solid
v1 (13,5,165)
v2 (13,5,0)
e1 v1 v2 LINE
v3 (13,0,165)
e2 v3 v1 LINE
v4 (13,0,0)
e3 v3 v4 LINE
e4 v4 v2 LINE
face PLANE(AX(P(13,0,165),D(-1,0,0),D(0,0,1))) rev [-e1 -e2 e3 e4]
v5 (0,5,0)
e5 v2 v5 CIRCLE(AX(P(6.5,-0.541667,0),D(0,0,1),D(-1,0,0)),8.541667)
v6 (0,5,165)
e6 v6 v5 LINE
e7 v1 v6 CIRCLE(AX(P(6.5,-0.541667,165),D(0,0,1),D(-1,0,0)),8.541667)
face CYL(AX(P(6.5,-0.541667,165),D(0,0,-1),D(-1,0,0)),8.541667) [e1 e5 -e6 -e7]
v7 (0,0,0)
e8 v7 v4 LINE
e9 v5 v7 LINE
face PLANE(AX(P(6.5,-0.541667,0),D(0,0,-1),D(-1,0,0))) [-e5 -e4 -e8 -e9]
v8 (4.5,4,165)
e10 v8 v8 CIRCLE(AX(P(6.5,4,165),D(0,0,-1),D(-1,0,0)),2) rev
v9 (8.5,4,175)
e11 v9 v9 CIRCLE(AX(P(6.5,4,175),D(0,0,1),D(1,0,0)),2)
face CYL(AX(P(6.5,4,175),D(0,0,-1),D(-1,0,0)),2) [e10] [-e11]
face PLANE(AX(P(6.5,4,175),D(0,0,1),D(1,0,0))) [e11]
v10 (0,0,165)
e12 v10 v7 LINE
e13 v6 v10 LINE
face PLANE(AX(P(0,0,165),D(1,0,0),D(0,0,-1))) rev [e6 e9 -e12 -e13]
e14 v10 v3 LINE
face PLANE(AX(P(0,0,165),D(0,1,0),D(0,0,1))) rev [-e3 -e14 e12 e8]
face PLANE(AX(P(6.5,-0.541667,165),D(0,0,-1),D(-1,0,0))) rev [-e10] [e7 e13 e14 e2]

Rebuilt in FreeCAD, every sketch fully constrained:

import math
import FreeCAD as App
import Part
import Sketcher
from FreeCAD import Vector
Q = App.Units.Quantity

doc = App.newDocument("Part")
body = doc.addObject("PartDesign::Body", "Body")

# Sketch on XY plane
sketch1 = doc.addObject("Sketcher::SketchObject", "Sketch")
body.addObject(sketch1)
sketch1.AttachmentSupport = (doc.XY_Plane, [""])
sketch1.MapMode = "FlatFace"
sketch1.addGeometry(Part.LineSegment(Vector(0, 0, 0), Vector(13, 0, 0)), False)
sketch1.addGeometry(Part.LineSegment(Vector(13, 0, 0), Vector(13, 5, 0)), False)
sketch1.addGeometry(Part.ArcOfCircle(Part.Circle(Vector(6, -1, 0), Vector(0, 0, 1), 9), math.radians(40), math.radians(140)), False)
sketch1.addGeometry(Part.LineSegment(Vector(0, 5, 0), Vector(0, 0, 0)), False)
sketch1.addConstraint(Sketcher.Constraint("Coincident", 0, 2, 1, 1))
sketch1.addConstraint(Sketcher.Constraint("Coincident", 1, 2, 2, 1))
sketch1.addConstraint(Sketcher.Constraint("Coincident", 2, 2, 3, 1))
sketch1.addConstraint(Sketcher.Constraint("Coincident", 3, 2, 0, 1))
sketch1.addConstraint(Sketcher.Constraint("Horizontal", 0))
sketch1.addConstraint(Sketcher.Constraint("Vertical", 1))
sketch1.addConstraint(Sketcher.Constraint("Vertical", 3))
sketch1.addConstraint(Sketcher.Constraint("Coincident", 3, 2, -1, 1))
sketch1.addConstraint(Sketcher.Constraint("Horizontal", 1, 2, 2, 2))
sketch1.addConstraint(Sketcher.Constraint("DistanceX", 0, 1, 0, 2, Q("13 mm")))
sketch1.addConstraint(Sketcher.Constraint("DistanceY", 1, 1, 1, 2, Q("5 mm")))
sketch1.addConstraint(Sketcher.Constraint("Radius", 2, Q("8.541667 mm")))
pad1 = doc.addObject("PartDesign::Pad", "Pad")
body.addObject(pad1)
pad1.Profile = sketch1
pad1.Length = 165

# Sketch on XY plane
sketch2 = doc.addObject("Sketcher::SketchObject", "Sketch001")
body.addObject(sketch2)
sketch2.AttachmentSupport = (doc.XY_Plane, [""])
sketch2.MapMode = "FlatFace"
sketch2.AttachmentOffset = App.Placement(Vector(0, 0, 165), App.Rotation())
sketch2.addGeometry(Part.Circle(Vector(6.5, 4, 0), Vector(0, 0, 1), 2), False)
sketch2.addConstraint(Sketcher.Constraint("Diameter", 0, Q("4 mm")))
sketch2.addConstraint(Sketcher.Constraint("DistanceY", -1, 1, 0, 3, Q("4 mm")))
sketch2.addConstraint(Sketcher.Constraint("DistanceX", -1, 1, 0, 3, Q("6.5 mm")))
pad2 = doc.addObject("PartDesign::Pad", "Pad001")
body.addObject(pad2)
pad2.Profile = sketch2
pad2.Length = 10

doc.recompute()
